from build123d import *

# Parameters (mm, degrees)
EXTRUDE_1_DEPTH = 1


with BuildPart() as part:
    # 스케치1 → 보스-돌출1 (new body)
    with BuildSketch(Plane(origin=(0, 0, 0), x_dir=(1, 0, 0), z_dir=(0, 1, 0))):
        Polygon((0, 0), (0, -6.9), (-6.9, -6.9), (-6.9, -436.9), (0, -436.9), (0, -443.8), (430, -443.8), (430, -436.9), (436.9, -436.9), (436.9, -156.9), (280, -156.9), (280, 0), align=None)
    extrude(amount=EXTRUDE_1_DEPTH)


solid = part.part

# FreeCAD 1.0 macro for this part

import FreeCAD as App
import Part
import Sketcher

V = App.Vector

doc = App.newDocument("Part")
body = doc.addObject("PartDesign::Body", "Body")

sketch1 = body.newObject("Sketcher::SketchObject", "Sketch")
sketch1.AttachmentSupport = (doc.getObject("XZ_Plane"), [""])
sketch1.MapMode = "FlatFace"
sketch1.addGeometry([
    Part.LineSegment(V(0, 0, 0), V(0, 7, 0)),
    Part.LineSegment(V(0, 7, 0), V(-7, 7, 0)),
    Part.LineSegment(V(-7, 7, 0), V(-7, 437, 0)),
    Part.LineSegment(V(-7, 437, 0), V(0, 437, 0)),
    Part.LineSegment(V(0, 437, 0), V(0, 444, 0)),
    Part.LineSegment(V(0, 444, 0), V(430, 444, 0)),
    Part.LineSegment(V(430, 444, 0), V(430, 437, 0)),
    Part.LineSegment(V(430, 437, 0), V(437, 437, 0)),
    Part.LineSegment(V(437, 437, 0), V(437, 157, 0)),
    Part.LineSegment(V(437, 157, 0), V(280, 157, 0)),
    Part.LineSegment(V(280, 157, 0), V(280, 0, 0)),
    Part.LineSegment(V(280, 0, 0), V(0, 0, 0)),
], False)
sketch1.addConstraint([
    Sketcher.Constraint("Coincident", 0, 2, 1, 1),
    Sketcher.Constraint("Coincident", 1, 2, 2, 1),
    Sketcher.Constraint("Coincident", 2, 2, 3, 1),
    Sketcher.Constraint("Coincident", 3, 2, 4, 1),
    Sketcher.Constraint("Coincident", 4, 2, 5, 1),
    Sketcher.Constraint("Coincident", 5, 2, 6, 1),
    Sketcher.Constraint("Coincident", 6, 2, 7, 1),
    Sketcher.Constraint("Coincident", 7, 2, 8, 1),
    Sketcher.Constraint("Coincident", 8, 2, 9, 1),
    Sketcher.Constraint("Coincident", 9, 2, 10, 1),
    Sketcher.Constraint("Coincident", 10, 2, 11, 1),
    Sketcher.Constraint("Coincident", 11, 2, 0, 1),
    Sketcher.Constraint("Vertical", 0),
    Sketcher.Constraint("Horizontal", 1),
    Sketcher.Constraint("Vertical", 2),
    Sketcher.Constraint("Horizontal", 3),
    Sketcher.Constraint("Vertical", 4),
    Sketcher.Constraint("Horizontal", 5),
    Sketcher.Constraint("Vertical", 6),
    Sketcher.Constraint("Horizontal", 7),
    Sketcher.Constraint("Vertical", 8),
    Sketcher.Constraint("Horizontal", 9),
    Sketcher.Constraint("Vertical", 10),
    Sketcher.Constraint("Horizontal", 11),
    Sketcher.Constraint("Coincident", 11, 2, -1, 1),
    Sketcher.Constraint("PointOnObject", 3, 2, -2),
    Sketcher.Constraint("Horizontal", 3, 2, 6, 2),
    Sketcher.Constraint("Equal", 3, 7),
    Sketcher.Constraint("Equal", 7, 0),
    Sketcher.Constraint("Equal", 5, 2),
    Sketcher.Constraint("Equal", 0, 4),
    Sketcher.Constraint("Equal", 11, 8),
    Sketcher.Constraint("DistanceX", 5, 1, 5, 2, 430.0),
    Sketcher.Constraint("DistanceX", 11, 2, 11, 1, 280.0),
    Sketcher.Constraint("DistanceX", 1, 2, 1, 1, 6.9),
])
pad1 = body.newObject("PartDesign::Pad", "Pad")
pad1.Profile = sketch1
pad1.Length = 1
pad1.Reversed = True

doc.recompute()
